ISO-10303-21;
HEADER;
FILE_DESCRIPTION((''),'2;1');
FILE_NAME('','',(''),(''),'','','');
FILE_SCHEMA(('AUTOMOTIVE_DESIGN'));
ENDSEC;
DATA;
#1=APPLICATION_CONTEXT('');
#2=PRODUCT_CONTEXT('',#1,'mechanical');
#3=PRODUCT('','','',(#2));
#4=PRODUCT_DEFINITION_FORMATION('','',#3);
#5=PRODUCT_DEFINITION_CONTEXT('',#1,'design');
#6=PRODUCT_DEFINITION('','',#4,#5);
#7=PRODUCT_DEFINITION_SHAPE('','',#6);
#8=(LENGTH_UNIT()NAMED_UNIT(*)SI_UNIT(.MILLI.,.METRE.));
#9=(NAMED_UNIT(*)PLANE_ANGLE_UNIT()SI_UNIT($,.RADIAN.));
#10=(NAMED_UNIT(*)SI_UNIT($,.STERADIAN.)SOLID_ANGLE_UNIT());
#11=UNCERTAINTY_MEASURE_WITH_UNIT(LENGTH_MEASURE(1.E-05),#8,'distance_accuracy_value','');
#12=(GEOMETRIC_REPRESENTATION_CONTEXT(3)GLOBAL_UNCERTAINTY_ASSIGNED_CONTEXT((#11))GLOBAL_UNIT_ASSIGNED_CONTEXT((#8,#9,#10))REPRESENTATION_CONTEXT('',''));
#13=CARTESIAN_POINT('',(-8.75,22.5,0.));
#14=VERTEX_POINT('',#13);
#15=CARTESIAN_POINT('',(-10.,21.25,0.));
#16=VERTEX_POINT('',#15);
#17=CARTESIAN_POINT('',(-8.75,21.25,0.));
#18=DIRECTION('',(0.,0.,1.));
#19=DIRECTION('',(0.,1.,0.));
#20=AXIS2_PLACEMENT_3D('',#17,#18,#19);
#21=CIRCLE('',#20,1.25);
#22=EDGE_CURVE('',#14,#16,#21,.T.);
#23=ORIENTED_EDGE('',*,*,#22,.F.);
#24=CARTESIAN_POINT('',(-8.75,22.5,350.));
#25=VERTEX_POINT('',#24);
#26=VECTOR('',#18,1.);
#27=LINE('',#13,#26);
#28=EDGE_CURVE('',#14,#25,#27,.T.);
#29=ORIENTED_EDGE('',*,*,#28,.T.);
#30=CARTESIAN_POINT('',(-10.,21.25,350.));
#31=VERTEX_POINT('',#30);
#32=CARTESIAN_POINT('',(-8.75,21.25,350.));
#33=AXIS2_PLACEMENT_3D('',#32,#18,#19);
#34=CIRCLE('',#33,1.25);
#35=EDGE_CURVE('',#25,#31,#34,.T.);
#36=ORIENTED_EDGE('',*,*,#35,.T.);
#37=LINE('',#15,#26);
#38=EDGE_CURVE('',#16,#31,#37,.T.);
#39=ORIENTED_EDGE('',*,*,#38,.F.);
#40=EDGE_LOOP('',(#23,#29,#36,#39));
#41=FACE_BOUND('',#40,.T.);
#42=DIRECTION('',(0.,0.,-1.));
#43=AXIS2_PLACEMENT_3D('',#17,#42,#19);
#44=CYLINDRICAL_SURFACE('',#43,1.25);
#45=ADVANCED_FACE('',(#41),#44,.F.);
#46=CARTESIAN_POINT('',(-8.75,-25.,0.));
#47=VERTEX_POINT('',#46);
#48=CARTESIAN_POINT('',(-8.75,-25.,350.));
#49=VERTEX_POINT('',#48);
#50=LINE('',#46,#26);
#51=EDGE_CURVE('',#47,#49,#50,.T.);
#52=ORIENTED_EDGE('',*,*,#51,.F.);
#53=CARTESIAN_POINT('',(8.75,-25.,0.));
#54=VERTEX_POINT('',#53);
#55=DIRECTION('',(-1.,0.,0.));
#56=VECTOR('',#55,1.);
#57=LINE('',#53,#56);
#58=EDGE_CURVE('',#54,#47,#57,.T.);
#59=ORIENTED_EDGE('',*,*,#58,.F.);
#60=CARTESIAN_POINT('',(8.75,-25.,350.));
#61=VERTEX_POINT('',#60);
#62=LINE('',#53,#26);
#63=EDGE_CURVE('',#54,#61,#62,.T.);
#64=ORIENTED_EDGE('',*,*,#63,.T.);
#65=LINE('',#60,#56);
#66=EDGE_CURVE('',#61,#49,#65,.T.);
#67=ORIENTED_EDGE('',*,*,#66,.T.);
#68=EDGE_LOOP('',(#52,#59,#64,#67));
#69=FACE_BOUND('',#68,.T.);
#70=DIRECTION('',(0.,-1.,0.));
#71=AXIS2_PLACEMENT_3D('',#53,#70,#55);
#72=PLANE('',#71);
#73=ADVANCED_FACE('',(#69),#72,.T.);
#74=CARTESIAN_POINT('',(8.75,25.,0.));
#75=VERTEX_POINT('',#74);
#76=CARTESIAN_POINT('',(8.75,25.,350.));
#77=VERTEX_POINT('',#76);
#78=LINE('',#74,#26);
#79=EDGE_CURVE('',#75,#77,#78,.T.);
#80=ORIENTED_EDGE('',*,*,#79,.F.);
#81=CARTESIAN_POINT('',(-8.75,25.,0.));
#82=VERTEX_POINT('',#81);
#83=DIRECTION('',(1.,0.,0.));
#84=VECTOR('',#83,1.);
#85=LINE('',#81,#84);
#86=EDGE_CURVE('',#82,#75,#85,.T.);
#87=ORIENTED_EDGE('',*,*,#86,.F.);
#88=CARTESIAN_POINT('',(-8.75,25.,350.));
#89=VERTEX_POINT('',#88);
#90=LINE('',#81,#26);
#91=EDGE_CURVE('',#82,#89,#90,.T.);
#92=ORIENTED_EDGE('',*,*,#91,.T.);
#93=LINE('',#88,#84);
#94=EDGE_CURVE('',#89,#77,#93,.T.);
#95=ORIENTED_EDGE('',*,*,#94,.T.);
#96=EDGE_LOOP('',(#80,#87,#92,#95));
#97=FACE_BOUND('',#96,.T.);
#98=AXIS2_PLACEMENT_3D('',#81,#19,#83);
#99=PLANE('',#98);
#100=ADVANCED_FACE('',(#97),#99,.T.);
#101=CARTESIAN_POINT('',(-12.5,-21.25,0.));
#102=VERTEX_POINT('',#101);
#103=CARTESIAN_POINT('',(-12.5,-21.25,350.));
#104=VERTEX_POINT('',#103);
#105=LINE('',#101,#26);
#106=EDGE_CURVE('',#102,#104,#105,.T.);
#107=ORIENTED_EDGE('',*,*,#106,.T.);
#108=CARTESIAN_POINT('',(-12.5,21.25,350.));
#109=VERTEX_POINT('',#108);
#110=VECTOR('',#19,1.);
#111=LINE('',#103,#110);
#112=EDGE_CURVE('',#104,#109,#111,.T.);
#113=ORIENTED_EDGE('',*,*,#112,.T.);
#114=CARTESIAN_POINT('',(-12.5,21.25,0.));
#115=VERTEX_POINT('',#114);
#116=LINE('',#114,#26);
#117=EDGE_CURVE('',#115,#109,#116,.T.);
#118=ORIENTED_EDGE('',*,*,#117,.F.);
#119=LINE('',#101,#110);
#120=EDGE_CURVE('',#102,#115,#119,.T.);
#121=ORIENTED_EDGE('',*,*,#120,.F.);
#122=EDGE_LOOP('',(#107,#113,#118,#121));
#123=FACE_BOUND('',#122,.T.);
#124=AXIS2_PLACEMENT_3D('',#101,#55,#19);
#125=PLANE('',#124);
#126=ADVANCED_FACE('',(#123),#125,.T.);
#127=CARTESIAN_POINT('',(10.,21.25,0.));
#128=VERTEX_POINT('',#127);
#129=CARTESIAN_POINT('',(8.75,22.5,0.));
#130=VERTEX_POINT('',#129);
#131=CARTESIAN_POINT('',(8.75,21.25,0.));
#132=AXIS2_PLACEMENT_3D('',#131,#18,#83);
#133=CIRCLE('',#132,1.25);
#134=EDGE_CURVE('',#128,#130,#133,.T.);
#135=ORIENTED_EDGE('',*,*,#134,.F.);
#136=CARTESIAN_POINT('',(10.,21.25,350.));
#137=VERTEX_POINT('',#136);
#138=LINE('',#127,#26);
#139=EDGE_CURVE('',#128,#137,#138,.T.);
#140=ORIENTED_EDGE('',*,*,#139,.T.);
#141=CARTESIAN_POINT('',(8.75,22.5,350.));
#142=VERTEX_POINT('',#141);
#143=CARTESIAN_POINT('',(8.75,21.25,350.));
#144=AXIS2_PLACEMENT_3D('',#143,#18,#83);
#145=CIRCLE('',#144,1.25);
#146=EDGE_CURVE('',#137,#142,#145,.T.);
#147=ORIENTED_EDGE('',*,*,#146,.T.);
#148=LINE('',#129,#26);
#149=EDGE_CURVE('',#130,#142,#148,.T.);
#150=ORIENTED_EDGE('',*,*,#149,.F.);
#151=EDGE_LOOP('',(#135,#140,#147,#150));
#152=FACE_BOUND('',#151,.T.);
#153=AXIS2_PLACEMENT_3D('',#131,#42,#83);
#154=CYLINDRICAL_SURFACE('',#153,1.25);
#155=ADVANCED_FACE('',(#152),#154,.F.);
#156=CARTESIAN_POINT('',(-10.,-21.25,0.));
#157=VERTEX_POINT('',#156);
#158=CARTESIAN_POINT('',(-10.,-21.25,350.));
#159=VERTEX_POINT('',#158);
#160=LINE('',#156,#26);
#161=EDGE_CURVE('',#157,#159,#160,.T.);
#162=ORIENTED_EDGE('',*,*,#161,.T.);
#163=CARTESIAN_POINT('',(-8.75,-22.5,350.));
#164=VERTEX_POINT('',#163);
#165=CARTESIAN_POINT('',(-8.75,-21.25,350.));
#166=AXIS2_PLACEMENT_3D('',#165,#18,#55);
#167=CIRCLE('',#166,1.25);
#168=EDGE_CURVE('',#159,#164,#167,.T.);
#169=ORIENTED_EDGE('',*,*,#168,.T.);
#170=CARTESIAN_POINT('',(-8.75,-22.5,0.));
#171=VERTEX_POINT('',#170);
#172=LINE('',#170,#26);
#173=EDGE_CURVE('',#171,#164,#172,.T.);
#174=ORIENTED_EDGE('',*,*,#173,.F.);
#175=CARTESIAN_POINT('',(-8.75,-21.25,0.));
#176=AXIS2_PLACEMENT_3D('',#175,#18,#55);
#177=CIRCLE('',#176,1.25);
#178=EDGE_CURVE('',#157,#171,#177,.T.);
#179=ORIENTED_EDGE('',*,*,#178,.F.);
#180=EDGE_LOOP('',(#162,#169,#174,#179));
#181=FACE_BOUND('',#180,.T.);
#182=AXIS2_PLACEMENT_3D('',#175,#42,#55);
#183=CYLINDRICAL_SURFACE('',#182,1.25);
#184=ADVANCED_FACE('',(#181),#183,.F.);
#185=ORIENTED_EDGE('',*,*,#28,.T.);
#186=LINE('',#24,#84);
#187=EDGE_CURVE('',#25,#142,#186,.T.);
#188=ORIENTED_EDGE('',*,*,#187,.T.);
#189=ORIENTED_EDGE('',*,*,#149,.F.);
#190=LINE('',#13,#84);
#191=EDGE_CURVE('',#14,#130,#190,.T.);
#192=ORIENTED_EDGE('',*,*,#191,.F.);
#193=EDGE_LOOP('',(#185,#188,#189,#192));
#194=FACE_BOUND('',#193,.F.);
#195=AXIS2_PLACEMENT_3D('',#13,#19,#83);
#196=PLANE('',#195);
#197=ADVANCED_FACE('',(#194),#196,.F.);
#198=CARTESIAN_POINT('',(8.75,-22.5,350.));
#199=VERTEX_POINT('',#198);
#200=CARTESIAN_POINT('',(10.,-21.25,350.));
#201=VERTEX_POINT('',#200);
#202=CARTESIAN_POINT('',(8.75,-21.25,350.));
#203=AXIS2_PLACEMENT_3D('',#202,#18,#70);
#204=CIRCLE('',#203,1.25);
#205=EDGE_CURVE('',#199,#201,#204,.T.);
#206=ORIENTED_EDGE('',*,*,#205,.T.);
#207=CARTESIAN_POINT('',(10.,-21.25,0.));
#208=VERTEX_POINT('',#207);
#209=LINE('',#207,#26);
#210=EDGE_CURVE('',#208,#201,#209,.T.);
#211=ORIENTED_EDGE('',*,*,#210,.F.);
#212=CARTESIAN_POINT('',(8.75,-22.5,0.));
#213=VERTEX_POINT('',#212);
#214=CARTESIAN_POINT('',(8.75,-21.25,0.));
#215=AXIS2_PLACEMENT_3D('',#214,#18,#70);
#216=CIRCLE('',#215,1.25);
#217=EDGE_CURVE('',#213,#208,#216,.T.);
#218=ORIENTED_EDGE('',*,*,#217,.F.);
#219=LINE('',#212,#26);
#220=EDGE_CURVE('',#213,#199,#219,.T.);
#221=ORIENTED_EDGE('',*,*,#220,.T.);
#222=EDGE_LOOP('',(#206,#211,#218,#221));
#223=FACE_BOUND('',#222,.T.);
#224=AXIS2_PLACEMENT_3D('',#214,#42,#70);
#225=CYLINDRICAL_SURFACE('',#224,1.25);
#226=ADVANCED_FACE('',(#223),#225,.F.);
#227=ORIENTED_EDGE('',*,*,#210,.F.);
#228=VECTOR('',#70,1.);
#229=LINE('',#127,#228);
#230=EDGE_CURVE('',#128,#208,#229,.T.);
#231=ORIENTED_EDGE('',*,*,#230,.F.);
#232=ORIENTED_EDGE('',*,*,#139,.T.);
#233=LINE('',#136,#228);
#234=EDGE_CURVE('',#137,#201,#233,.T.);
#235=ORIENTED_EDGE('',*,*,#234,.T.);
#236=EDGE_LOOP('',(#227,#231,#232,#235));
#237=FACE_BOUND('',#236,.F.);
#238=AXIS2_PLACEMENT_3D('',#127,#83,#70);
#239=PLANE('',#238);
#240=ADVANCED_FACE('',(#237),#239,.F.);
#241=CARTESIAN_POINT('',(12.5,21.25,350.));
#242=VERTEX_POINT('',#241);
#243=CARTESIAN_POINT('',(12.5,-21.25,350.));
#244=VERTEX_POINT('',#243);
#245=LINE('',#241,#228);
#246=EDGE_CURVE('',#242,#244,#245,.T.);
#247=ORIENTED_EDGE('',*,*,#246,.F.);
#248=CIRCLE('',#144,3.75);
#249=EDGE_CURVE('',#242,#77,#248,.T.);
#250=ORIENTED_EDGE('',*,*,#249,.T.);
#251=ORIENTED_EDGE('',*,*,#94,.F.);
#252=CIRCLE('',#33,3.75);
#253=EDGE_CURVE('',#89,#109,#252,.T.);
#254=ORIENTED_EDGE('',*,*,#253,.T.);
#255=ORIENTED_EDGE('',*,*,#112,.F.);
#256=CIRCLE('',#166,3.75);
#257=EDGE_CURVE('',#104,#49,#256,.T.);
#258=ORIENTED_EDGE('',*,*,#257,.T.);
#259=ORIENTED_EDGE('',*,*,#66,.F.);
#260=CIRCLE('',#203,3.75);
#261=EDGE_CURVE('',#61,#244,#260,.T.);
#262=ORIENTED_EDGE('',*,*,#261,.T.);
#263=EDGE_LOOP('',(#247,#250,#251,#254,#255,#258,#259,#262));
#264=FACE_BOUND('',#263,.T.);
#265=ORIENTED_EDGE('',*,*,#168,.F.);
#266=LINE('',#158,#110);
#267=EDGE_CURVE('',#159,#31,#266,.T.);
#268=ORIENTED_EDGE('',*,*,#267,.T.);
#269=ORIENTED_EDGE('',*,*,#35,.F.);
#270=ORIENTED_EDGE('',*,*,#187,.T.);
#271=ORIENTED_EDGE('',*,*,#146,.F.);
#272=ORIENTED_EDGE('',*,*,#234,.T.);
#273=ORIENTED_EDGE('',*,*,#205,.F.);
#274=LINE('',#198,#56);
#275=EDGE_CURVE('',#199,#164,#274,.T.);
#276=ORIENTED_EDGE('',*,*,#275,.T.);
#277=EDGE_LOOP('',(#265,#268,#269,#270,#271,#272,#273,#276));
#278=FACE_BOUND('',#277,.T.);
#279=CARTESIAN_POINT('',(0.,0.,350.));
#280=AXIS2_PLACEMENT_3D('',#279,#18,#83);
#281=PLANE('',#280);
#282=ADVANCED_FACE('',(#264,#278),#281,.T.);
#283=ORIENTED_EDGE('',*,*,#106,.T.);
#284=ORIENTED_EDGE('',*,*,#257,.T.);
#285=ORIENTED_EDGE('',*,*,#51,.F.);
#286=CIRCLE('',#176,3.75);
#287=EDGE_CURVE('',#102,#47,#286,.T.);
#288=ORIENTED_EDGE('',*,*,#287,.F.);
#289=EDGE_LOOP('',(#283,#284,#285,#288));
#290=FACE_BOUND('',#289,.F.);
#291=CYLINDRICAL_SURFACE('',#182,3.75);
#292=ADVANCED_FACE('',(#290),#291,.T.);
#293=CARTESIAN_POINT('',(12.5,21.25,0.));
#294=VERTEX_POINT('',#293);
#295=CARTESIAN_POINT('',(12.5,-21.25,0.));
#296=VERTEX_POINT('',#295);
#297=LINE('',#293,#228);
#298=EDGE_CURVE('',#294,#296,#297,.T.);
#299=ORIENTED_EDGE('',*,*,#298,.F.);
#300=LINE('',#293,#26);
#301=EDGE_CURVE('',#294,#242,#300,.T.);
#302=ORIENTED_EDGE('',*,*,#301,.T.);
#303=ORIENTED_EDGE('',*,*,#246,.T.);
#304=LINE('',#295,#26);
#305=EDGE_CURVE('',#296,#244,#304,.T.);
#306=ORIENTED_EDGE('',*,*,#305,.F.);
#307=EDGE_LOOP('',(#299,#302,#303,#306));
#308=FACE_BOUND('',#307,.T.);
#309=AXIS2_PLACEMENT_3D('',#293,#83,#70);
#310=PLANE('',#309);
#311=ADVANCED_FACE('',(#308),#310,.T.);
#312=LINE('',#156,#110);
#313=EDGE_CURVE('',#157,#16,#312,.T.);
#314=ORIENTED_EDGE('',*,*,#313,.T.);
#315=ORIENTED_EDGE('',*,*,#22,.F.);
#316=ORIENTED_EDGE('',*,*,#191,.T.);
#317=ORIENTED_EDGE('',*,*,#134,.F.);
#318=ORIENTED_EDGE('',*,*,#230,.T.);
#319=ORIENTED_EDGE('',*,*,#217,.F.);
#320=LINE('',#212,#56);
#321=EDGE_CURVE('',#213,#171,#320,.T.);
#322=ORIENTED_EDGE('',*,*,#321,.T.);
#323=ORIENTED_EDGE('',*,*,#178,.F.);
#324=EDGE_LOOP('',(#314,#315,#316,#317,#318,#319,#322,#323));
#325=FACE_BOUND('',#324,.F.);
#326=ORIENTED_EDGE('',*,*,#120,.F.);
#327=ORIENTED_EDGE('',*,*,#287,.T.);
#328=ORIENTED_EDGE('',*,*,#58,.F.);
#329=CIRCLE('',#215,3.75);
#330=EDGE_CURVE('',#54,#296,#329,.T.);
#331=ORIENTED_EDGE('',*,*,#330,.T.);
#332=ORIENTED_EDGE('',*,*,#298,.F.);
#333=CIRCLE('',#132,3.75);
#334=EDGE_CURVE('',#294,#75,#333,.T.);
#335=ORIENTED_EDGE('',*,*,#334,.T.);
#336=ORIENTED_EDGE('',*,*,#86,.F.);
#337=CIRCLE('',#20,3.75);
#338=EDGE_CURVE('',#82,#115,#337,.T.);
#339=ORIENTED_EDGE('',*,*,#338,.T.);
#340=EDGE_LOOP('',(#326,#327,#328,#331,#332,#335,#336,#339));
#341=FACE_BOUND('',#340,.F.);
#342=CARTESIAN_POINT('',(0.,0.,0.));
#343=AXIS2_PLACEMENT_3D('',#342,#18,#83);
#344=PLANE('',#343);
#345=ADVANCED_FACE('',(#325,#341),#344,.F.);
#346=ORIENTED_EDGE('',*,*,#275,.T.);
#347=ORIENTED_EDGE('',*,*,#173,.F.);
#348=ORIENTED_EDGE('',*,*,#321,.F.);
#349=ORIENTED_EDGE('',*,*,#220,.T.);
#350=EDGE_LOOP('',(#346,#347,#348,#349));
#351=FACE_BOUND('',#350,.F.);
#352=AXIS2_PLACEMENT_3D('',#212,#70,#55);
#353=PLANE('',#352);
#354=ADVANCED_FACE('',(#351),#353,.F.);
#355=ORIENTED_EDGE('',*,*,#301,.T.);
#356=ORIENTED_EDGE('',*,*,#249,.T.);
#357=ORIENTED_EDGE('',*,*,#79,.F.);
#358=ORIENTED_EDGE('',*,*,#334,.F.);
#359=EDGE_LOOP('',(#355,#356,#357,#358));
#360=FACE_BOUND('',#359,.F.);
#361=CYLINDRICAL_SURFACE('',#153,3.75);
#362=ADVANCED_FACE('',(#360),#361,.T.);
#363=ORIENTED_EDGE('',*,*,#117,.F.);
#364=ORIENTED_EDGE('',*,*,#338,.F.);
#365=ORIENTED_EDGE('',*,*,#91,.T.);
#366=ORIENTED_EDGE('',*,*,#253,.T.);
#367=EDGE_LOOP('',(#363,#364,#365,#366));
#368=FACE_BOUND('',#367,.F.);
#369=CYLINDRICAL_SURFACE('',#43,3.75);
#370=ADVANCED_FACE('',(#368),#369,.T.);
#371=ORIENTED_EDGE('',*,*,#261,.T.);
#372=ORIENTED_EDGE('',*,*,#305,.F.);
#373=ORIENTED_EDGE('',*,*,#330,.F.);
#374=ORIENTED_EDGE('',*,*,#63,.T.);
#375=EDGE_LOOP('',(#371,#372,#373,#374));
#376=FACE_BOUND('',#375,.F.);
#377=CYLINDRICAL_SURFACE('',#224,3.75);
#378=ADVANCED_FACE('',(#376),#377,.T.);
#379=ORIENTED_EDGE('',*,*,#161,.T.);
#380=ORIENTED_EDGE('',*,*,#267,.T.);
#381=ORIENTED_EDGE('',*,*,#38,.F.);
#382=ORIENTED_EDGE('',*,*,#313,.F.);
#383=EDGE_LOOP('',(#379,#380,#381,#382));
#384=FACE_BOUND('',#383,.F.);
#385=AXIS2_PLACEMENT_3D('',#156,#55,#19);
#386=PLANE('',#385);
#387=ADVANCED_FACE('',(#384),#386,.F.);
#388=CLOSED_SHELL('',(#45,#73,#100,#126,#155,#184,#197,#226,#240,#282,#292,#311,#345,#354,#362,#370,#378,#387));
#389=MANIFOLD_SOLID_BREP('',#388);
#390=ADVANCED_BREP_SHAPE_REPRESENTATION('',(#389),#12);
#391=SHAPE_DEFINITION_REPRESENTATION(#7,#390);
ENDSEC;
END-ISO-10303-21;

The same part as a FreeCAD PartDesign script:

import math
import FreeCAD as App
import Part
import Sketcher

V = App.Vector

doc = App.newDocument("Part")
params = doc.addObject("Spreadsheet::Sheet", "Params")
for row, (alias, value) in enumerate([
    ("sketch1_radius", "3.75 mm"),
    ("sketch1_radius2", "1.25 mm"),
    ("pad1_length", "350 mm"),
], start=1):
    params.set(f"A{row}", alias)
    params.set(f"B{row}", "=" + value)
    params.setAlias(f"B{row}", alias)

body = doc.addObject("PartDesign::Body", "Body")

sketch1 = body.newObject("Sketcher::SketchObject", "Sketch")
sketch1.AttachmentSupport = (doc.getObject("XY_Plane"), [""])
sketch1.MapMode = "FlatFace"
sketch1.addGeometry([
    Part.LineSegment(V(-12.5, 21.25, 0), V(-12.5, -21.25, 0)),
    Part.ArcOfCircle(Part.Circle(V(-8.75, -21.25, 0), V(0, 0, 1), 3.75), math.radians(180), math.radians(270)),
    Part.LineSegment(V(-8.75, -25, 0), V(8.75, -25, 0)),
    Part.ArcOfCircle(Part.Circle(V(8.75, -21.25, 0), V(0, 0, 1), 3.75), math.radians(-90), math.radians(0)),
    Part.LineSegment(V(12.5, -21.25, 0), V(12.5, 21.25, 0)),
    Part.ArcOfCircle(Part.Circle(V(8.75, 21.25, 0), V(0, 0, 1), 3.75), math.radians(0), math.radians(90)),
    Part.LineSegment(V(8.75, 25, 0), V(-8.75, 25, 0)),
    Part.ArcOfCircle(Part.Circle(V(-8.75, 21.25, 0), V(0, 0, 1), 3.75), math.radians(90), math.radians(180)),
    Part.ArcOfCircle(Part.Circle(V(-8.75, 21.25, 0), V(0, 0, 1), 1.25), math.radians(90), math.radians(180)),
    Part.LineSegment(V(-8.75, 22.5, 0), V(8.75, 22.5, 0)),
    Part.ArcOfCircle(Part.Circle(V(8.75, 21.25, 0), V(0, 0, 1), 1.25), math.radians(0), math.radians(90)),
    Part.LineSegment(V(10, 21.25, 0), V(10, -21.25, 0)),
    Part.ArcOfCircle(Part.Circle(V(8.75, -21.25, 0), V(0, 0, 1), 1.25), math.radians(-90), math.radians(0)),
    Part.LineSegment(V(8.75, -22.5, 0), V(-8.75, -22.5, 0)),
    Part.ArcOfCircle(Part.Circle(V(-8.75, -21.25, 0), V(0, 0, 1), 1.25), math.radians(180), math.radians(270)),
    Part.LineSegment(V(-10, -21.25, 0), V(-10, 21.25, 0)),
], False)
sketch1.addConstraint([
    Sketcher.Constraint("Tangent", 0, 2, 1, 1),
    Sketcher.Constraint("Tangent", 1, 2, 2, 1),
    Sketcher.Constraint("Tangent", 2, 2, 3, 1),
    Sketcher.Constraint("Tangent", 3, 2, 4, 1),
    Sketcher.Constraint("Tangent", 4, 2, 5, 1),
    Sketcher.Constraint("Tangent", 5, 2, 6, 1),
    Sketcher.Constraint("Tangent", 6, 2, 7, 1),
    Sketcher.Constraint("Tangent", 7, 2, 0, 1),
    Sketcher.Constraint("Tangent", 8, 1, 9, 1),
    Sketcher.Constraint("Tangent", 9, 2, 10, 2),
    Sketcher.Constraint("Tangent", 10, 1, 11, 1),
    Sketcher.Constraint("Tangent", 11, 2, 12, 2),
    Sketcher.Constraint("Tangent", 12, 1, 13, 1),
    Sketcher.Constraint("Tangent", 13, 2, 14, 2),
    Sketcher.Constraint("Tangent", 14, 1, 15, 1),
    Sketcher.Constraint("Tangent", 15, 2, 8, 2),
    Sketcher.Constraint("Vertical", 0),
    Sketcher.Constraint("Horizontal", 2),
    Sketcher.Constraint("Vertical", 4),
    Sketcher.Constraint("Horizontal", 6),
    Sketcher.Constraint("Horizontal", 9),
    Sketcher.Constraint("Vertical", 11),
    Sketcher.Constraint("Horizontal", 13),
    Sketcher.Constraint("Vertical", 15),
    Sketcher.Constraint("Coincident", 8, 3, 7, 3),
    Sketcher.Constraint("Coincident", 10, 3, 5, 3),
    Sketcher.Constraint("Coincident", 12, 3, 3, 3),
    Sketcher.Constraint("Equal", 1, 3),
    Sketcher.Constraint("Equal", 3, 5),
    Sketcher.Constraint("Equal", 5, 7),
    Sketcher.Constraint("Equal", 12, 14),
    Sketcher.Constraint("Symmetric", 1, 3, 5, 3, -1, 1),
    Sketcher.Constraint("Radius", 1, 3.75),
    Sketcher.Constraint("Radius", 8, 1.25),
    Sketcher.Constraint("DistanceY", 1, 2, -1, 1, 25.0),
    Sketcher.Constraint("DistanceX", 0, 2, -1, 1, 12.5),
])
sketch1.setExpression("Constraints[32]", "Params.sketch1_radius")
sketch1.setExpression("Constraints[33]", "Params.sketch1_radius2")
pad1 = body.newObject("PartDesign::Pad", "Pad")
pad1.Profile = sketch1
pad1.setExpression("Length", "Params.pad1_length")

doc.recompute()
